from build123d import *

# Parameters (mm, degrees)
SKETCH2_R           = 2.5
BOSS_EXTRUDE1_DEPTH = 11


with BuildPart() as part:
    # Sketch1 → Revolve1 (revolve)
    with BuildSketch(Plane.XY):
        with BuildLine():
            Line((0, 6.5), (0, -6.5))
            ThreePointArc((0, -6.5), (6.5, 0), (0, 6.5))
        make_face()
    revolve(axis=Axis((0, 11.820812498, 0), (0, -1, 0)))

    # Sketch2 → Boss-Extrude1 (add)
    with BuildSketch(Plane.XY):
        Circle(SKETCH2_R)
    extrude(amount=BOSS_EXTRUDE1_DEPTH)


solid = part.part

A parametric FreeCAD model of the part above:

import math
import FreeCAD as App
import Part
import Sketcher

V = App.Vector

doc = App.newDocument("Part")
body = doc.addObject("PartDesign::Body", "Body")

# Sketch on XY plane
sketch1 = doc.addObject("Sketcher::SketchObject", "Sketch")
body.addObject(sketch1)
sketch1.AttachmentSupport = (doc.XY_Plane, [""])
sketch1.MapMode = "FlatFace"
sketch1.addGeometry([
    Part.LineSegment(V(0, 6.5, 0), V(0, -6.5, 0)),
    Part.ArcOfCircle(Part.Circle(V(0, 0, 0), V(0, 0, 1), 6.5), math.radians(-90), math.radians(90)),
], False)
sketch1.addConstraint([
    Sketcher.Constraint("Coincident", 0, 1, 1, 2),
    Sketcher.Constraint("Coincident", 1, 1, 0, 2),
    Sketcher.Constraint("Vertical", 0),
    Sketcher.Constraint("Coincident", 1, 3, -1, 1),
    Sketcher.Constraint("PointOnObject", 0, 1, -2),
    Sketcher.Constraint("Radius", 1, 6.5),
])
revolution = doc.addObject("PartDesign::Revolution", "Revolution")
body.addObject(revolution)
revolution.Profile = sketch1
revolution.ReferenceAxis = (sketch1, ["V_Axis"])
revolution.Angle = 360

# Sketch on XY plane
sketch2 = doc.addObject("Sketcher::SketchObject", "Sketch001")
body.addObject(sketch2)
sketch2.AttachmentSupport = (doc.XY_Plane, [""])
sketch2.MapMode = "FlatFace"
sketch2.addGeometry(Part.Circle(V(0, 0, 0), V(0, 0, 1), 2.5), False)
sketch2.addConstraint([
    Sketcher.Constraint("Coincident", 0, 3, -1, 1),
    Sketcher.Constraint("Diameter", 0, 5.0),
])
pad1 = doc.addObject("PartDesign::Pad", "Pad")
body.addObject(pad1)
pad1.Profile = sketch2
pad1.Length = 11

doc.recompute()
